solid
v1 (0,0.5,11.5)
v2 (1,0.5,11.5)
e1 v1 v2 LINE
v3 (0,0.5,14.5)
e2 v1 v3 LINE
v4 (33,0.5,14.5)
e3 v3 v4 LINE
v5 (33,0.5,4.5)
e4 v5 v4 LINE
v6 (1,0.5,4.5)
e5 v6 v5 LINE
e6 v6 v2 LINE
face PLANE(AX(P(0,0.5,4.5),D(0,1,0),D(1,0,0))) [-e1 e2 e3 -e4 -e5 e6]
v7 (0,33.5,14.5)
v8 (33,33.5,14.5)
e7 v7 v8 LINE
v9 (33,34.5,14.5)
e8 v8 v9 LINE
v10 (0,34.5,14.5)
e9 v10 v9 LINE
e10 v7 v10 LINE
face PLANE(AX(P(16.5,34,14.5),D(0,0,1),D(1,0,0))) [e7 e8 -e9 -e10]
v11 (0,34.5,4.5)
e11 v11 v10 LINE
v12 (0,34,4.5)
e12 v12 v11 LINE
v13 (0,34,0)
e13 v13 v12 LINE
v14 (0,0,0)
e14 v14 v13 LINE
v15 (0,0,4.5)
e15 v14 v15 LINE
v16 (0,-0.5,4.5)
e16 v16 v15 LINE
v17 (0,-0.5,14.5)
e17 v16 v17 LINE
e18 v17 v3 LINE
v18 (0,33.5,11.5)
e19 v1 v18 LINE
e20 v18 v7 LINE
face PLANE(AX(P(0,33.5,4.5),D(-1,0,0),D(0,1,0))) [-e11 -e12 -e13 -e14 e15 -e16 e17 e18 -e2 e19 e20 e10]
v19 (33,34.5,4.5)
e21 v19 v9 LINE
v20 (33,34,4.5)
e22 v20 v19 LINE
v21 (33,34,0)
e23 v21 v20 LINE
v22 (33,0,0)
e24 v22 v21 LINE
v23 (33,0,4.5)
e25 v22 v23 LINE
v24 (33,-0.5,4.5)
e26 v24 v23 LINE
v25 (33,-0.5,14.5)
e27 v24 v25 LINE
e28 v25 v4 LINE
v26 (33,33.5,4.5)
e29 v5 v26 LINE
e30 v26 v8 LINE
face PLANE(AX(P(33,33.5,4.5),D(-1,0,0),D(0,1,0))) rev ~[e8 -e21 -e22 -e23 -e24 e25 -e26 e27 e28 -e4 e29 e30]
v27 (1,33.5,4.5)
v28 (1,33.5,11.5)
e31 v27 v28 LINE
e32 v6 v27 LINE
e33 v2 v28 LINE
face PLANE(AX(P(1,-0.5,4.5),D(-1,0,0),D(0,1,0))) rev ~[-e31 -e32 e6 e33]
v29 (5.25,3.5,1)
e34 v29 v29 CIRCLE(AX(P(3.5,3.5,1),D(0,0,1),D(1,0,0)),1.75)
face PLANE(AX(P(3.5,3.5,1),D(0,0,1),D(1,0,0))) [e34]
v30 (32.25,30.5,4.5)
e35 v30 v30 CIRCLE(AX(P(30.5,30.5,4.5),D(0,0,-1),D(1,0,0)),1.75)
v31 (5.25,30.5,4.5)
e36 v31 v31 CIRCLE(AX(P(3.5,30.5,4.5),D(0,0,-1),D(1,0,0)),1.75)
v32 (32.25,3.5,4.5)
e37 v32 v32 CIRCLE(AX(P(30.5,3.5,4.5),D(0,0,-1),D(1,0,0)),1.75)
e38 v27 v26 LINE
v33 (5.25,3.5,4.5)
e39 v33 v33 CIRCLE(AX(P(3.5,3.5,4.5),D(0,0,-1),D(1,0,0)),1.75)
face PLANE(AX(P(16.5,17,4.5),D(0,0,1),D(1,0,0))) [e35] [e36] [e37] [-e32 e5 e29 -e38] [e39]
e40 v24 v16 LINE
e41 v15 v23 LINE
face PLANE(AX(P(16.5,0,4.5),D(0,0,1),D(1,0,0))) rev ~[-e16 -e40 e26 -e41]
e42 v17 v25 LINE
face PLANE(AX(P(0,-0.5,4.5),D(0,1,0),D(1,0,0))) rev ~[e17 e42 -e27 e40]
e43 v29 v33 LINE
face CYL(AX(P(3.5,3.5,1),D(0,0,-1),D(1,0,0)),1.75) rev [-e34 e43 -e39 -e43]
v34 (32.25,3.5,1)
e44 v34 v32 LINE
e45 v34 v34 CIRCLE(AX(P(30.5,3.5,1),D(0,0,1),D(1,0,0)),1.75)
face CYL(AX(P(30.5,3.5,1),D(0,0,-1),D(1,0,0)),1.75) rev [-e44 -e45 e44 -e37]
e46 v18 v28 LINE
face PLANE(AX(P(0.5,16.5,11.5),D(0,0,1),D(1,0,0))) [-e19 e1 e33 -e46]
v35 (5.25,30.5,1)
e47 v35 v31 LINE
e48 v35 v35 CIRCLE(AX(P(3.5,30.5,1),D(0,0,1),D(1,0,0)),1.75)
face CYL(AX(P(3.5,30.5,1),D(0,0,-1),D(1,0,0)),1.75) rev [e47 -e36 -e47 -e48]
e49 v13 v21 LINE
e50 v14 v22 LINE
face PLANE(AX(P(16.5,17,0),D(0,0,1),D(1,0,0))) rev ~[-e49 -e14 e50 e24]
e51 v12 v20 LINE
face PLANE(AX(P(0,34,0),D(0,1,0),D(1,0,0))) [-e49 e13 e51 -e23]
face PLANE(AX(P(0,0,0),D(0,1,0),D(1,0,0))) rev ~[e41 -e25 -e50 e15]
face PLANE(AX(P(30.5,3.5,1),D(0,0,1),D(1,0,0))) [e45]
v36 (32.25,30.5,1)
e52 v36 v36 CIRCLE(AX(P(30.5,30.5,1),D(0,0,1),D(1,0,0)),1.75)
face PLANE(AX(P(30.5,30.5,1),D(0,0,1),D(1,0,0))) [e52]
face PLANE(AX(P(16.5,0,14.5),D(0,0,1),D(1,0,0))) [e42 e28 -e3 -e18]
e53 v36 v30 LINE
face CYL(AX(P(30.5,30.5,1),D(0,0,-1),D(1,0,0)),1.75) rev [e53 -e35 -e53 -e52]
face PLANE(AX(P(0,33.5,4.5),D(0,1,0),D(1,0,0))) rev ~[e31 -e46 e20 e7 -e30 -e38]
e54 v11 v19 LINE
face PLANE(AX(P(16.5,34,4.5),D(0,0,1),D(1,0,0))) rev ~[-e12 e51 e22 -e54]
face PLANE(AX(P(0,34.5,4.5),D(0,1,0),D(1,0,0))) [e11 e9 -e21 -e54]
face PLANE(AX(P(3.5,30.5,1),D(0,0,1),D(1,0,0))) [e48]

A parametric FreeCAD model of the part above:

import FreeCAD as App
import Part
import Sketcher
from FreeCAD import Vector

doc = App.newDocument("Part")
params = doc.addObject("Spreadsheet::Sheet", "Params")
for row, (alias, value) in enumerate([
    ("sketch1_width", "33 mm"),
    ("sketch1_height", "1 mm"),
    ("pad1_length", "10 mm"),
    ("sketch2_width", "1 mm"),
    ("sketch2_height", "34 mm"),
    ("pad2_length", "7 mm"),
    ("sketch3_width", "33 mm"),
    ("sketch3_height", "1 mm"),
    ("pad3_length", "10 mm"),
    ("sketch4_width", "33 mm"),
    ("sketch4_height", "1 mm"),
    ("pad4_length", "10 mm"),
    ("sketch5_diameter", "3.5 mm"),
    ("pad5_length", "4.5 mm"),
    ("sketch6_diameter", "3.5 mm"),
    ("pad6_length", "4.5 mm"),
    ("sketch7_diameter", "3.5 mm"),
    ("pad7_length", "4.5 mm"),
    ("sketch8_diameter", "3.5 mm"),
    ("pad8_length", "4.5 mm"),
    ("sketch9_width", "33 mm"),
    ("sketch9_height", "34 mm"),
    ("pad9_length", "4.5 mm"),
], start=1):
    params.set(f"A{row}", alias)
    params.set(f"B{row}", "=" + value)
    params.setAlias(f"B{row}", alias)

body = doc.addObject("PartDesign::Body", "Body")

# Sketch on XY plane
sketch1 = doc.addObject("Sketcher::SketchObject", "Sketch")
body.addObject(sketch1)
sketch1.AttachmentSupport = (doc.XY_Plane, [""])
sketch1.MapMode = "FlatFace"
sketch1.AttachmentOffset = App.Placement(Vector(0, 0, 4.5), App.Rotation())
sketch1.addGeometry([
    Part.LineSegment(Vector(0, 0.5, 0), Vector(0, -0.5, 0)),
    Part.LineSegment(Vector(0, -0.5, 0), Vector(33, -0.5, 0)),
    Part.LineSegment(Vector(33, -0.5, 0), Vector(33, 0.5, 0)),
    Part.LineSegment(Vector(33, 0.5, 0), Vector(0, 0.5, 0)),
], False)
sketch1.addConstraint([
    Sketcher.Constraint("Coincident", 0, 2, 1, 1),
    Sketcher.Constraint("Coincident", 1, 2, 2, 1),
    Sketcher.Constraint("Coincident", 2, 2, 3, 1),
    Sketcher.Constraint("Coincident", 3, 2, 0, 1),
    Sketcher.Constraint("Vertical", 0),
    Sketcher.Constraint("Horizontal", 1),
    Sketcher.Constraint("Vertical", 2),
    Sketcher.Constraint("Horizontal", 3),
    Sketcher.Constraint("Symmetric", 0, 2, 3, 2, -1, 1),
    Sketcher.Constraint("DistanceX", 1, 1, 1, 2, 33.0),
    Sketcher.Constraint("DistanceY", 0, 2, 0, 1, 1.0),
])
sketch1.setExpression("Constraints[9]", "Params.sketch1_width")
sketch1.setExpression("Constraints[10]", "Params.sketch1_height")
pad1 = doc.addObject("PartDesign::Pad", "Pad")
body.addObject(pad1)
pad1.Profile = sketch1
pad1.setExpression("Length", "Params.pad1_length")
body2 = doc.addObject("PartDesign::Body", "Body001")

# Sketch on XY plane
sketch2 = doc.addObject("Sketcher::SketchObject", "Sketch001")
body2.addObject(sketch2)
sketch2.AttachmentSupport = (doc.getObject("XY_Plane001"), [""])
sketch2.MapMode = "FlatFace"
sketch2.AttachmentOffset = App.Placement(Vector(0, 0, 4.5), App.Rotation())
sketch2.addGeometry([
    Part.LineSegment(Vector(0, 33.5, 0), Vector(0, -0.5, 0)),
    Part.LineSegment(Vector(0, -0.5, 0), Vector(1, -0.5, 0)),
    Part.LineSegment(Vector(1, -0.5, 0), Vector(1, 33.5, 0)),
    Part.LineSegment(Vector(1, 33.5, 0), Vector(0, 33.5, 0)),
], False)
sketch2.addConstraint([
    Sketcher.Constraint("Coincident", 0, 2, 1, 1),
    Sketcher.Constraint("Coincident", 1, 2, 2, 1),
    Sketcher.Constraint("Coincident", 2, 2, 3, 1),
    Sketcher.Constraint("Coincident", 3, 2, 0, 1),
    Sketcher.Constraint("Vertical", 0),
    Sketcher.Constraint("Horizontal", 1),
    Sketcher.Constraint("Vertical", 2),
    Sketcher.Constraint("Horizontal", 3),
    Sketcher.Constraint("PointOnObject", 0, 2, -2),
    Sketcher.Constraint("DistanceX", 1, 1, 1, 2, 1.0),
    Sketcher.Constraint("DistanceY", 0, 2, 0, 1, 34.0),
    Sketcher.Constraint("DistanceY", 0, 2, -1, 1, 0.5),
])
sketch2.setExpression("Constraints[9]", "Params.sketch2_width")
sketch2.setExpression("Constraints[10]", "Params.sketch2_height")
pad2 = doc.addObject("PartDesign::Pad", "Pad001")
body2.addObject(pad2)
pad2.Profile = sketch2
pad2.setExpression("Length", "Params.pad2_length")
body3 = doc.addObject("PartDesign::Body", "Body002")

# Sketch on XY plane
sketch3 = doc.addObject("Sketcher::SketchObject", "Sketch002")
body3.addObject(sketch3)
sketch3.AttachmentSupport = (doc.getObject("XY_Plane002"), [""])
sketch3.MapMode = "FlatFace"
sketch3.AttachmentOffset = App.Placement(Vector(0, 0, 4.5), App.Rotation())
sketch3.addGeometry([
    Part.LineSegment(Vector(0, 34.5, 0), Vector(0, 33.5, 0)),
    Part.LineSegment(Vector(0, 33.5, 0), Vector(33, 33.5, 0)),
    Part.LineSegment(Vector(33, 33.5, 0), Vector(33, 34.5, 0)),
    Part.LineSegment(Vector(33, 34.5, 0), Vector(0, 34.5, 0)),
], False)
sketch3.addConstraint([
    Sketcher.Constraint("Coincident", 0, 2, 1, 1),
    Sketcher.Constraint("Coincident", 1, 2, 2, 1),
    Sketcher.Constraint("Coincident", 2, 2, 3, 1),
    Sketcher.Constraint("Coincident", 3, 2, 0, 1),
    Sketcher.Constraint("Vertical", 0),
    Sketcher.Constraint("Horizontal", 1),
    Sketcher.Constraint("Vertical", 2),
    Sketcher.Constraint("Horizontal", 3),
    Sketcher.Constraint("PointOnObject", 0, 2, -2),
    Sketcher.Constraint("DistanceX", 1, 1, 1, 2, 33.0),
    Sketcher.Constraint("DistanceY", 0, 2, 0, 1, 1.0),
    Sketcher.Constraint("DistanceY", -1, 1, 0, 2, 33.5),
])
sketch3.setExpression("Constraints[9]", "Params.sketch3_width")
sketch3.setExpression("Constraints[10]", "Params.sketch3_height")
pad3 = doc.addObject("PartDesign::Pad", "Pad002")
body3.addObject(pad3)
pad3.Profile = sketch3
pad3.setExpression("Length", "Params.pad3_length")
body4 = doc.addObject("PartDesign::Body", "Body003")

# Sketch on XY plane
sketch4 = doc.addObject("Sketcher::SketchObject", "Sketch003")
body4.addObject(sketch4)
sketch4.AttachmentSupport = (doc.getObject("XY_Plane003"), [""])
sketch4.MapMode = "FlatFace"
sketch4.AttachmentOffset = App.Placement(Vector(0, 0, 4.5), App.Rotation())
sketch4.addGeometry([
    Part.LineSegment(Vector(0, 0.5, 0), Vector(0, -0.5, 0)),
    Part.LineSegment(Vector(0, -0.5, 0), Vector(33, -0.5, 0)),
    Part.LineSegment(Vector(33, -0.5, 0), Vector(33, 0.5, 0)),
    Part.LineSegment(Vector(33, 0.5, 0), Vector(0, 0.5, 0)),
], False)
sketch4.addConstraint([
    Sketcher.Constraint("Coincident", 0, 2, 1, 1),
    Sketcher.Constraint("Coincident", 1, 2, 2, 1),
    Sketcher.Constraint("Coincident", 2, 2, 3, 1),
    Sketcher.Constraint("Coincident", 3, 2, 0, 1),
    Sketcher.Constraint("Vertical", 0),
    Sketcher.Constraint("Horizontal", 1),
    Sketcher.Constraint("Vertical", 2),
    Sketcher.Constraint("Horizontal", 3),
    Sketcher.Constraint("Symmetric", 0, 2, 3, 2, -1, 1),
    Sketcher.Constraint("DistanceX", 1, 1, 1, 2, 33.0),
    Sketcher.Constraint("DistanceY", 0, 2, 0, 1, 1.0),
])
sketch4.setExpression("Constraints[9]", "Params.sketch4_width")
sketch4.setExpression("Constraints[10]", "Params.sketch4_height")
pad4 = doc.addObject("PartDesign::Pad", "Pad003")
body4.addObject(pad4)
pad4.Profile = sketch4
pad4.setExpression("Length", "Params.pad4_length")
body5 = doc.addObject("PartDesign::Body", "Body004")

# Sketch on XY plane
sketch5 = doc.addObject("Sketcher::SketchObject", "Sketch004")
body5.addObject(sketch5)
sketch5.AttachmentSupport = (doc.getObject("XY_Plane004"), [""])
sketch5.MapMode = "FlatFace"
sketch5.AttachmentOffset = App.Placement(Vector(0, 0, 1), App.Rotation())
sketch5.addGeometry(Part.Circle(Vector(3.5, 3.5, 0), Vector(0, 0, 1), 1.8), False)
sketch5.addConstraint([
    Sketcher.Constraint("Diameter", 0, 3.5),
    Sketcher.Constraint("DistanceX", -1, 1, 0, 3, 3.5),
    Sketcher.Constraint("DistanceY", -1, 1, 0, 3, 3.5),
])
sketch5.setExpression("Constraints[0]", "Params.sketch5_diameter")
pad5 = doc.addObject("PartDesign::Pad", "Pad004")
body5.addObject(pad5)
pad5.Profile = sketch5
pad5.setExpression("Length", "Params.pad5_length")
body6 = doc.addObject("PartDesign::Body", "Body005")

# Sketch on XY plane
sketch6 = doc.addObject("Sketcher::SketchObject", "Sketch005")
body6.addObject(sketch6)
sketch6.AttachmentSupport = (doc.getObject("XY_Plane005"), [""])
sketch6.MapMode = "FlatFace"
sketch6.AttachmentOffset = App.Placement(Vector(0, 0, 1), App.Rotation())
sketch6.addGeometry(Part.Circle(Vector(3.5, 30.5, 0), Vector(0, 0, 1), 1.8), False)
sketch6.addConstraint([
    Sketcher.Constraint("Diameter", 0, 3.5),
    Sketcher.Constraint("DistanceX", -1, 1, 0, 3, 3.5),
    Sketcher.Constraint("DistanceY", -1, 1, 0, 3, 30.5),
])
sketch6.setExpression("Constraints[0]", "Params.sketch6_diameter")
pad6 = doc.addObject("PartDesign::Pad", "Pad005")
body6.addObject(pad6)
pad6.Profile = sketch6
pad6.setExpression("Length", "Params.pad6_length")
body7 = doc.addObject("PartDesign::Body", "Body006")

# Sketch on XY plane
sketch7 = doc.addObject("Sketcher::SketchObject", "Sketch006")
body7.addObject(sketch7)
sketch7.AttachmentSupport = (doc.getObject("XY_Plane006"), [""])
sketch7.MapMode = "FlatFace"
sketch7.AttachmentOffset = App.Placement(Vector(0, 0, 1), App.Rotation())
sketch7.addGeometry(Part.Circle(Vector(30.5, 30.5, 0), Vector(0, 0, 1), 1.8), False)
sketch7.addConstraint([
    Sketcher.Constraint("Diameter", 0, 3.5),
    Sketcher.Constraint("DistanceX", -1, 1, 0, 3, 30.5),
    Sketcher.Constraint("DistanceY", -1, 1, 0, 3, 30.5),
])
sketch7.setExpression("Constraints[0]", "Params.sketch7_diameter")
pad7 = doc.addObject("PartDesign::Pad", "Pad006")
body7.addObject(pad7)
pad7.Profile = sketch7
pad7.setExpression("Length", "Params.pad7_length")
body8 = doc.addObject("PartDesign::Body", "Body007")

# Sketch on XY plane
sketch8 = doc.addObject("Sketcher::SketchObject", "Sketch007")
body8.addObject(sketch8)
sketch8.AttachmentSupport = (doc.getObject("XY_Plane007"), [""])
sketch8.MapMode = "FlatFace"
sketch8.AttachmentOffset = App.Placement(Vector(0, 0, 1), App.Rotation())
sketch8.addGeometry(Part.Circle(Vector(30.5, 3.5, 0), Vector(0, 0, 1), 1.8), False)
sketch8.addConstraint([
    Sketcher.Constraint("Diameter", 0, 3.5),
    Sketcher.Constraint("DistanceX", -1, 1, 0, 3, 30.5),
    Sketcher.Constraint("DistanceY", -1, 1, 0, 3, 3.5),
])
sketch8.setExpression("Constraints[0]", "Params.sketch8_diameter")
pad8 = doc.addObject("PartDesign::Pad", "Pad007")
body8.addObject(pad8)
pad8.Profile = sketch8
pad8.setExpression("Length", "Params.pad8_length")
body9 = doc.addObject("PartDesign::Body", "Body008")

# Sketch on XY plane
sketch9 = doc.addObject("Sketcher::SketchObject", "Sketch008")
body9.addObject(sketch9)
sketch9.AttachmentSupport = (doc.getObject("XY_Plane008"), [""])
sketch9.MapMode = "FlatFace"
sketch9.addGeometry([
    Part.LineSegment(Vector(0, 34, 0), Vector(0, 0, 0)),
    Part.LineSegment(Vector(0, 0, 0), Vector(33, 0, 0)),
    Part.LineSegment(Vector(33, 0, 0), Vector(33, 34, 0)),
    Part.LineSegment(Vector(33, 34, 0), Vector(0, 34, 0)),
], False)
sketch9.addConstraint([
    Sketcher.Constraint("Coincident", 0, 2, 1, 1),
    Sketcher.Constraint("Coincident", 1, 2, 2, 1),
    Sketcher.Constraint("Coincident", 2, 2, 3, 1),
    Sketcher.Constraint("Coincident", 3, 2, 0, 1),
    Sketcher.Constraint("Vertical", 0),
    Sketcher.Constraint("Horizontal", 1),
    Sketcher.Constraint("Vertical", 2),
    Sketcher.Constraint("Horizontal", 3),
    Sketcher.Constraint("Coincident", 0, 2, -1, 1),
    Sketcher.Constraint("DistanceX", 1, 1, 1, 2, 33.0),
    Sketcher.Constraint("DistanceY", 0, 2, 0, 1, 34.0),
])
sketch9.setExpression("Constraints[9]", "Params.sketch9_width")
sketch9.setExpression("Constraints[10]", "Params.sketch9_height")
pad9 = doc.addObject("PartDesign::Pad", "Pad008")
body9.addObject(pad9)
pad9.Profile = sketch9
pad9.setExpression("Length", "Params.pad9_length")
doc.recompute()

boolean = doc.addObject("PartDesign::Boolean", "Boolean")
body9.addObject(boolean)
boolean.Type = "Fuse"
boolean.addObjects([body])
doc.recompute()

boolean2 = doc.addObject("PartDesign::Boolean", "Boolean001")
body9.addObject(boolean2)
boolean2.Type = "Fuse"
boolean2.addObjects([body2])
doc.recompute()

boolean3 = doc.addObject("PartDesign::Boolean", "Boolean002")
body9.addObject(boolean3)
boolean3.Type = "Fuse"
boolean3.addObjects([body3])
doc.recompute()

boolean4 = doc.addObject("PartDesign::Boolean", "Boolean003")
body9.addObject(boolean4)
boolean4.Type = "Fuse"
boolean4.addObjects([body4])
doc.recompute()

boolean5 = doc.addObject("PartDesign::Boolean", "Boolean004")
body9.addObject(boolean5)
boolean5.Type = "Cut"
boolean5.addObjects([body5])
doc.recompute()

boolean6 = doc.addObject("PartDesign::Boolean", "Boolean005")
body9.addObject(boolean6)
boolean6.Type = "Cut"
boolean6.addObjects([body6])
doc.recompute()

boolean7 = doc.addObject("PartDesign::Boolean", "Boolean006")
body9.addObject(boolean7)
boolean7.Type = "Cut"
boolean7.addObjects([body7])
doc.recompute()

boolean8 = doc.addObject("PartDesign::Boolean", "Boolean007")
body9.addObject(boolean8)
boolean8.Type = "Cut"
boolean8.addObjects([body8])

doc.recompute()
